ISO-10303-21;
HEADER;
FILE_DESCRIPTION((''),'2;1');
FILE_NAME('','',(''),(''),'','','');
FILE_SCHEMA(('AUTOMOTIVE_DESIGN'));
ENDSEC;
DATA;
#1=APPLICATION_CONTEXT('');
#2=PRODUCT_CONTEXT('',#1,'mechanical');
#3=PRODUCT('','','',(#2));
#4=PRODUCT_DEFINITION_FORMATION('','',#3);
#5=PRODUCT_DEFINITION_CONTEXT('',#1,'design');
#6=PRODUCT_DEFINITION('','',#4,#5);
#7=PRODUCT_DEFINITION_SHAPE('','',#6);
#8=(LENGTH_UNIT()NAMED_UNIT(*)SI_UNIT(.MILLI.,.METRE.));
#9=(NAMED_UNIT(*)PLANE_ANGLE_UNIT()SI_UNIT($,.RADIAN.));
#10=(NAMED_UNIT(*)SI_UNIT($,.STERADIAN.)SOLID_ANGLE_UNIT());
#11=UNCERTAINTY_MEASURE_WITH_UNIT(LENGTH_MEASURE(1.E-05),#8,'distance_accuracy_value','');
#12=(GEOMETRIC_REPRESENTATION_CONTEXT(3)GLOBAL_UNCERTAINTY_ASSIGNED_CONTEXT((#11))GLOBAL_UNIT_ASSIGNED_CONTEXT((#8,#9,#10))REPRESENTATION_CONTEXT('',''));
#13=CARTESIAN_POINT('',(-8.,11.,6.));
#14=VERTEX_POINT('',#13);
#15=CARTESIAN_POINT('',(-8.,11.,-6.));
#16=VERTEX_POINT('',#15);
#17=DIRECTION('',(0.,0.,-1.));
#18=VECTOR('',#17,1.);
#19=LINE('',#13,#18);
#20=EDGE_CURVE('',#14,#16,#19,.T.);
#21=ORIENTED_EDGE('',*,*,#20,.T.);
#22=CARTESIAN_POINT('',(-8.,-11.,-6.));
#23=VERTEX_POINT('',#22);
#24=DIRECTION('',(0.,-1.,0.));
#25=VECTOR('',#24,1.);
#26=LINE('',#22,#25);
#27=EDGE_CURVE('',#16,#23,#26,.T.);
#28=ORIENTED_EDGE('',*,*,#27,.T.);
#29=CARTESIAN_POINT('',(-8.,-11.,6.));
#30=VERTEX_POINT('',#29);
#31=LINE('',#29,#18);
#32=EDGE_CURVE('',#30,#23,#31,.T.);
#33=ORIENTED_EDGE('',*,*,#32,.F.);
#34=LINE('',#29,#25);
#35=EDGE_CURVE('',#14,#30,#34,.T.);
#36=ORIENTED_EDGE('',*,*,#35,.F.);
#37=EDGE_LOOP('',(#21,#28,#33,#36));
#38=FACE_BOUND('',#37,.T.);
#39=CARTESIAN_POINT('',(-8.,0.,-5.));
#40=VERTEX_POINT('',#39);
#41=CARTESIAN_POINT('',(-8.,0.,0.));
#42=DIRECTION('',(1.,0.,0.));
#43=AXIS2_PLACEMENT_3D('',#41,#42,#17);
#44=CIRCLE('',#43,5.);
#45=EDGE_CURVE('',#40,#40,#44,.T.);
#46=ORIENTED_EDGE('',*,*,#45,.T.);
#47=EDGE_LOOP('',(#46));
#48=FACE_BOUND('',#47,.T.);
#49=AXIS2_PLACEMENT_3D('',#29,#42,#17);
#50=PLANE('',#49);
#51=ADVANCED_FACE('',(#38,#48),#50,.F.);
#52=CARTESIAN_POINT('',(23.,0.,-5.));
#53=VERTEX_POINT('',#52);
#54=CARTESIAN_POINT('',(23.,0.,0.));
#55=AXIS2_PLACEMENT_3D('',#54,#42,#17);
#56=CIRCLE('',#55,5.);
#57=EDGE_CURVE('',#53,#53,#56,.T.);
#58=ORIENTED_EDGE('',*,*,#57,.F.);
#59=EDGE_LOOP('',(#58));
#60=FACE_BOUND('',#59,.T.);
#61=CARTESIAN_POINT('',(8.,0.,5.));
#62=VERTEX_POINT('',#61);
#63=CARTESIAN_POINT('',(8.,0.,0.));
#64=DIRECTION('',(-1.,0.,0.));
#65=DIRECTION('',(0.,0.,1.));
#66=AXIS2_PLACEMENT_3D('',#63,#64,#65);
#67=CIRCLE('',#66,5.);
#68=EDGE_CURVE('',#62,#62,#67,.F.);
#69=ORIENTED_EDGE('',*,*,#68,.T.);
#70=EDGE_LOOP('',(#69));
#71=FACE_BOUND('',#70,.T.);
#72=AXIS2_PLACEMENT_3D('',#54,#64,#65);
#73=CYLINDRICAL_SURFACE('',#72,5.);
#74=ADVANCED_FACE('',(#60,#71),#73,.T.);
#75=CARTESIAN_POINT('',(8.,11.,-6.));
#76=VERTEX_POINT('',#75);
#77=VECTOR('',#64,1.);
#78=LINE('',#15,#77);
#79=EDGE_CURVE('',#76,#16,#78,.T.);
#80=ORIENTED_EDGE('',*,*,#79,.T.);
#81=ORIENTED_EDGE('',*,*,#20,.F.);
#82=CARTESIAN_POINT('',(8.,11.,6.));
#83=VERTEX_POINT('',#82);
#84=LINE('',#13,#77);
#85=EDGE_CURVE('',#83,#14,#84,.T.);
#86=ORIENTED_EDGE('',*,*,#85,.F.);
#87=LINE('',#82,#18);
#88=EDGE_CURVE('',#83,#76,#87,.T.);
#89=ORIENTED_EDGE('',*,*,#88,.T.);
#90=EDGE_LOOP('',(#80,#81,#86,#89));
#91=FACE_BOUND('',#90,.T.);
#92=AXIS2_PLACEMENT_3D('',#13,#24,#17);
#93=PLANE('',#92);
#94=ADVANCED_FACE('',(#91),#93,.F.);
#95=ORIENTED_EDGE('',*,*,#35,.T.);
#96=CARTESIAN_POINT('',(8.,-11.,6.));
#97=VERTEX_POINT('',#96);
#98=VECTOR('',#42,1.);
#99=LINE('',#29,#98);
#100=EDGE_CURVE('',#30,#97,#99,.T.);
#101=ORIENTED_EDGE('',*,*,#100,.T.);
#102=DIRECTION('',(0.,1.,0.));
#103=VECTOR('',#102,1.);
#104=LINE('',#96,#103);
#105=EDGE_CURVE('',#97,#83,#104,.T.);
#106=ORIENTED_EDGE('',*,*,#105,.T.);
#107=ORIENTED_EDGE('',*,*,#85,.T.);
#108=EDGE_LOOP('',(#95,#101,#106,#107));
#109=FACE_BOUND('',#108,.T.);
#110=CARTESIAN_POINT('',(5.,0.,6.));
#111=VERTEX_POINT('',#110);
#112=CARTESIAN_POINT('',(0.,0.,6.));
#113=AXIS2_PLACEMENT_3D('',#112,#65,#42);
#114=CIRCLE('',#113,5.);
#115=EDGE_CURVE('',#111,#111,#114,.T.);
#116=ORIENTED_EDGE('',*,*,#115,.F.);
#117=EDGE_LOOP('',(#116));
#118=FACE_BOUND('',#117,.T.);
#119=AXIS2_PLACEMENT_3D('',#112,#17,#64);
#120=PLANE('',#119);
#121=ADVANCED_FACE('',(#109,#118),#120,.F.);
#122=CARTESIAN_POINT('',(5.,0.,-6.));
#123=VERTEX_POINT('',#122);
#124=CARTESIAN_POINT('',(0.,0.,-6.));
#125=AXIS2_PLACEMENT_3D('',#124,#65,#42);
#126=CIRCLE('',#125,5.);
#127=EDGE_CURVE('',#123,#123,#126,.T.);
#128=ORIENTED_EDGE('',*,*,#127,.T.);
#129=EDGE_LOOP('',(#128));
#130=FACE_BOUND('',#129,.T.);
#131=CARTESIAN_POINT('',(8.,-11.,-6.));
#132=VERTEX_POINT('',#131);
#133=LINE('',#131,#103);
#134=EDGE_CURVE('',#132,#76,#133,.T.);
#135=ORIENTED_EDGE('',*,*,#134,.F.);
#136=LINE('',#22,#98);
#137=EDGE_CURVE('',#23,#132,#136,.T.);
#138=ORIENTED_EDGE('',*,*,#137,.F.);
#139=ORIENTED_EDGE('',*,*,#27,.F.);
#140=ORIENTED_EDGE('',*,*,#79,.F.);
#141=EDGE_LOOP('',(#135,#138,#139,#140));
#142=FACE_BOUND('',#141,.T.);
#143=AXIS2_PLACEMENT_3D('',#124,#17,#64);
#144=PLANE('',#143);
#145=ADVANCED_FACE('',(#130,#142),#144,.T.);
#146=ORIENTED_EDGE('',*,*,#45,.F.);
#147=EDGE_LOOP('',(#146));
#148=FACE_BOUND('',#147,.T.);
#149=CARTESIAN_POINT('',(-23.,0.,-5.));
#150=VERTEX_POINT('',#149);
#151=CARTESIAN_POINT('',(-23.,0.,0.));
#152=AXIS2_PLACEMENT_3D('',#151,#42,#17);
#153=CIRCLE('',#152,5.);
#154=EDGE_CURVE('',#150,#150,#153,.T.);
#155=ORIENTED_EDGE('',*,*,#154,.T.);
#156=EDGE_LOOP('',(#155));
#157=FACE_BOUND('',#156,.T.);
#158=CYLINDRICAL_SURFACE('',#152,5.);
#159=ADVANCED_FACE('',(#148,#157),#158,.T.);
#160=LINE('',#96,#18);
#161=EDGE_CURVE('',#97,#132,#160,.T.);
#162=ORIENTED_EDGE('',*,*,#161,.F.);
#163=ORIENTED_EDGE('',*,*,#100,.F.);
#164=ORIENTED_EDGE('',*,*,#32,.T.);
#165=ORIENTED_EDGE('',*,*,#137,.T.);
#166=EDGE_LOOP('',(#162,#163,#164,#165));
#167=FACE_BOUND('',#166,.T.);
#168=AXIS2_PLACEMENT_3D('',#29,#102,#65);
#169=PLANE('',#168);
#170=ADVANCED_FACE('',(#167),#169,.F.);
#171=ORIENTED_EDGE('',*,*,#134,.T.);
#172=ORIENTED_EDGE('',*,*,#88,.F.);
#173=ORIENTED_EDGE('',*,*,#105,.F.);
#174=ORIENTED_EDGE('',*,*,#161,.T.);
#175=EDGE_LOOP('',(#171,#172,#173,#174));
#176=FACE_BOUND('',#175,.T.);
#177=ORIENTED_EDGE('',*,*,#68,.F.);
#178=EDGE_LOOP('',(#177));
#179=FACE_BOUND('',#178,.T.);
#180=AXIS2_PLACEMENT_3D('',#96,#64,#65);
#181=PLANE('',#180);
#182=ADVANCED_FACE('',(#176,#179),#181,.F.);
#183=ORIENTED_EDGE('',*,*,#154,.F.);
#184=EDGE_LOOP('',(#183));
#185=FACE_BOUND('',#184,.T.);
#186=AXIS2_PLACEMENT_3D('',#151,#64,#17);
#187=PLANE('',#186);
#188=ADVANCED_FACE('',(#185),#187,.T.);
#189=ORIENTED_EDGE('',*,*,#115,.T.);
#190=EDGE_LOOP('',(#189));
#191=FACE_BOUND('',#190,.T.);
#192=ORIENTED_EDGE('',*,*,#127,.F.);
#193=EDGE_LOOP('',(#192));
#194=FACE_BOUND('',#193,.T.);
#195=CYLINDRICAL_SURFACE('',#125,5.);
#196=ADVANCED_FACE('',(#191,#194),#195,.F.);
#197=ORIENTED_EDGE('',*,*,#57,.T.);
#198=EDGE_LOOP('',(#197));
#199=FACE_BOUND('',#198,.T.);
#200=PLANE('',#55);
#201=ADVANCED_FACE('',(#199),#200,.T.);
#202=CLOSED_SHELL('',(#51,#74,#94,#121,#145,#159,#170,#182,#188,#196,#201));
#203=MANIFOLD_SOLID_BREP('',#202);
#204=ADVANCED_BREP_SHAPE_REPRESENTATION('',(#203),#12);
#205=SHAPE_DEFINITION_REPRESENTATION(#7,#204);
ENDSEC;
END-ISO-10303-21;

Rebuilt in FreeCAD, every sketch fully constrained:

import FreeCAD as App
import Part
import Sketcher
Q = App.Units.Quantity


def add_polygon(sketch, points):
    """Adds a closed chain of lines whose ends are joined by coincident constraints."""
    first, n = sketch.GeometryCount, len(points)
    for a, b in zip(points, points[1:] + points[:1]):
        sketch.addGeometry(Part.LineSegment(App.Vector(*a, 0), App.Vector(*b, 0)), False)
    for i in range(n):
        sketch.addConstraint(Sketcher.Constraint("Coincident", first + i, 2, first + (i + 1) % n, 1))

doc = App.newDocument("Part")
body = doc.addObject("PartDesign::Body", "Body")

# Sketch on XY plane
sketch1 = body.newObject("Sketcher::SketchObject", "Sketch")
sketch1.AttachmentSupport = (doc.getObject("XY_Plane"), [""])
sketch1.MapMode = "FlatFace"
add_polygon(sketch1, [(-8, 11), (-8, -11), (8, -11), (8, 11)])  # lines 0-3
sketch1.addConstraint(Sketcher.Constraint("Vertical", 0))
sketch1.addConstraint(Sketcher.Constraint("Horizontal", 1))
sketch1.addConstraint(Sketcher.Constraint("Vertical", 2))
sketch1.addConstraint(Sketcher.Constraint("Horizontal", 3))
sketch1.addConstraint(Sketcher.Constraint("Symmetric", 0, 2, 2, 2, -1, 1))
sketch1.addConstraint(Sketcher.Constraint("DistanceX", 1, 1, 1, 2, Q("16 mm")))
sketch1.addConstraint(Sketcher.Constraint("DistanceY", 0, 2, 0, 1, Q("22 mm")))
pad1 = body.newObject("PartDesign::Pad", "Pad")
pad1.Profile = sketch1
pad1.Length = 12
pad1.Midplane = True

# Sketch on YZ plane
sketch2 = body.newObject("Sketcher::SketchObject", "Sketch001")
sketch2.AttachmentSupport = (doc.getObject("YZ_Plane"), [""])
sketch2.MapMode = "FlatFace"
sketch2.AttachmentOffset = App.Placement(App.Vector(0, 0, 8), App.Rotation())
sketch2.addGeometry(Part.Circle(App.Vector(0, 0, 0), App.Vector(0, 0, 1), 5), False)
sketch2.addConstraint(Sketcher.Constraint("Coincident", 0, 3, -1, 1))
sketch2.addConstraint(Sketcher.Constraint("Diameter", 0, Q("10 mm")))
pad2 = body.newObject("PartDesign::Pad", "Pad001")
pad2.Profile = sketch2
pad2.Length = 15
doc.recompute()

mirrored = body.newObject("PartDesign::Mirrored", "Mirrored")
mirrored.Originals = [pad2]
mirrored.MirrorPlane = (doc.getObject("YZ_Plane"), [""])
body.Tip = mirrored

# Sketch on XY plane
sketch3 = body.newObject("Sketcher::SketchObject", "Sketch002")
sketch3.AttachmentSupport = (doc.getObject("XY_Plane"), [""])
sketch3.MapMode = "FlatFace"
sketch3.AttachmentOffset = App.Placement(App.Vector(0, 0, 6), App.Rotation())
sketch3.addGeometry(Part.Circle(App.Vector(0, 0, 0), App.Vector(0, 0, 1), 5), False)
sketch3.addConstraint(Sketcher.Constraint("Coincident", 0, 3, -1, 1))
sketch3.addConstraint(Sketcher.Constraint("Diameter", 0, Q("10 mm")))
pocket1 = body.newObject("PartDesign::Pocket", "Pocket")
pocket1.Profile = sketch3
pocket1.Type = "ThroughAll"

doc.recompute()
